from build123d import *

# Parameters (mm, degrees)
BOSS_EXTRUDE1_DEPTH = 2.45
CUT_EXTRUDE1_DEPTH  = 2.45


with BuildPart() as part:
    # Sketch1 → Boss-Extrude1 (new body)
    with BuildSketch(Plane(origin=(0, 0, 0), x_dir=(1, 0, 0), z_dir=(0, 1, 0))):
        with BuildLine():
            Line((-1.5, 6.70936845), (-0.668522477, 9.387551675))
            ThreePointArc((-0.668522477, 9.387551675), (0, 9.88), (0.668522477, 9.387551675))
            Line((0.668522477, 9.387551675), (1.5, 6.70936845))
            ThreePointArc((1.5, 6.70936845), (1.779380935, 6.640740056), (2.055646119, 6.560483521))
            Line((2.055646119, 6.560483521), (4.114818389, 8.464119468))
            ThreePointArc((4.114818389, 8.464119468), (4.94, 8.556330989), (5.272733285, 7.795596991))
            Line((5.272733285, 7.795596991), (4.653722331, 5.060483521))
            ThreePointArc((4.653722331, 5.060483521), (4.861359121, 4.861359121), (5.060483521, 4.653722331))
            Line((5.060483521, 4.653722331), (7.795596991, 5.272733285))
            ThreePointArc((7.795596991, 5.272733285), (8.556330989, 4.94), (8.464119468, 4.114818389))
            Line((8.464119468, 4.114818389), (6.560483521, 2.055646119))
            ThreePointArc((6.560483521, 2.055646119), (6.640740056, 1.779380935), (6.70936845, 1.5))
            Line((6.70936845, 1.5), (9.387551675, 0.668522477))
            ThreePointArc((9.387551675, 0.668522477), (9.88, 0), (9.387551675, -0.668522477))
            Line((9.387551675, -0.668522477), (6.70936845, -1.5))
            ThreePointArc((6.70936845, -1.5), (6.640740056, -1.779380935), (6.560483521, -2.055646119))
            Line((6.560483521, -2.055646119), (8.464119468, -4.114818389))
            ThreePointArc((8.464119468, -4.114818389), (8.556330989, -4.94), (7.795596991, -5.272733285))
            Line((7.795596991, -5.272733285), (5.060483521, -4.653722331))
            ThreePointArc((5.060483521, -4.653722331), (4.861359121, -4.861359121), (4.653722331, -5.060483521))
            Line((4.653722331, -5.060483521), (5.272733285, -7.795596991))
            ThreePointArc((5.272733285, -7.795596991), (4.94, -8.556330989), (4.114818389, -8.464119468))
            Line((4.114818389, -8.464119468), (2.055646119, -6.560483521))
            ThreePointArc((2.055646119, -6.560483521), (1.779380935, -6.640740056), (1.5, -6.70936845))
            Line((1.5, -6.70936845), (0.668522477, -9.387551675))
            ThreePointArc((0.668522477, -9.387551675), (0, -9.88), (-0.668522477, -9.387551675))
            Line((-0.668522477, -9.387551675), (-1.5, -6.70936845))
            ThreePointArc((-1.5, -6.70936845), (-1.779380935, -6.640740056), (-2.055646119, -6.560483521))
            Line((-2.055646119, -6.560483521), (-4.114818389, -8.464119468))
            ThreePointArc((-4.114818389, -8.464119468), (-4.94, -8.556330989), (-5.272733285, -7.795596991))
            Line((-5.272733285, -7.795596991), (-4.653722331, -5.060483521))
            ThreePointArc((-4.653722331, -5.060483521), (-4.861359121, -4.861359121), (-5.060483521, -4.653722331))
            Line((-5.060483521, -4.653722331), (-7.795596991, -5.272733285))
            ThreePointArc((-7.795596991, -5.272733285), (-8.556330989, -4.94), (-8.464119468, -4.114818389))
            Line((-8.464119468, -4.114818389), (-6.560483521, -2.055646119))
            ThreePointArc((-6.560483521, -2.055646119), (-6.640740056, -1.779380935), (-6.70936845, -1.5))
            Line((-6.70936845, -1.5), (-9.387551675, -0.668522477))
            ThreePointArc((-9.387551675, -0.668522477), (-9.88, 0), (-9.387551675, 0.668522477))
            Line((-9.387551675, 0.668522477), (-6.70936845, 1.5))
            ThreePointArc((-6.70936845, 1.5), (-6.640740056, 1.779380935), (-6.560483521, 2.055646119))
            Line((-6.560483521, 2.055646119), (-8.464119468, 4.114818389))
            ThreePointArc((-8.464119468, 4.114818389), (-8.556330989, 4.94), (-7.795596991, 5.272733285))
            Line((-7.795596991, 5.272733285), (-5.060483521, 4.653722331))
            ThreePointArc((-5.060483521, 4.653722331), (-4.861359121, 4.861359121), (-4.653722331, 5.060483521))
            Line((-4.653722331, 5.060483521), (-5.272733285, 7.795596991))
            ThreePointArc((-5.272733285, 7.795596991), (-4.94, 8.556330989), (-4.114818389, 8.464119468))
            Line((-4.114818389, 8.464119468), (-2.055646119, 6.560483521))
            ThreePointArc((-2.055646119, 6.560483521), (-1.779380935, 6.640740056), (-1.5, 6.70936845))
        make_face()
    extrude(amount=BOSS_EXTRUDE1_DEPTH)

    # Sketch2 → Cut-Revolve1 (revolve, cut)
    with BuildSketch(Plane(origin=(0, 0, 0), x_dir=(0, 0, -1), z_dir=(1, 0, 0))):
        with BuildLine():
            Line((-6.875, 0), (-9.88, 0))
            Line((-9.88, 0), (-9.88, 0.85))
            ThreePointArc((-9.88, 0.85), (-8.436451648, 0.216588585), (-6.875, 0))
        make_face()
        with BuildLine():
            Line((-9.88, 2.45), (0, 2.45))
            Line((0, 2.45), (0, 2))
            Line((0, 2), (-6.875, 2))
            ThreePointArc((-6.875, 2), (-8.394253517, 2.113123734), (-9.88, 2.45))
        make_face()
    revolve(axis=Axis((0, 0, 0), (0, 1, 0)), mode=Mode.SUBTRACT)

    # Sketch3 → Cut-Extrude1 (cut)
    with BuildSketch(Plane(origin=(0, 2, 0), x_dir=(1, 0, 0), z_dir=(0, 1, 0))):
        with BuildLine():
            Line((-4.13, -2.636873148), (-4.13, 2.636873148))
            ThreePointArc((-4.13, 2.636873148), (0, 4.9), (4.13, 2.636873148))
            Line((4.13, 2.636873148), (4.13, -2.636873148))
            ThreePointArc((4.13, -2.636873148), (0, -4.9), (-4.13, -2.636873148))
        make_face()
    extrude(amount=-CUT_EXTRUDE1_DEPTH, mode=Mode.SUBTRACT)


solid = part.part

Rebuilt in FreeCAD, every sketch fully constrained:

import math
import FreeCAD as App
import Part
import Sketcher
Q = App.Units.Quantity

doc = App.newDocument("Part")
body = doc.addObject("PartDesign::Body", "Body")

# Sketch on XZ plane
sketch1 = body.newObject("Sketcher::SketchObject", "Sketch")
sketch1.AttachmentSupport = (doc.getObject("XZ_Plane"), [""])
sketch1.MapMode = "FlatFace"
sketch1.addGeometry([
    Part.LineSegment(App.Vector(-0.7, -9.4, 0), App.Vector(-1.5, -6.7, 0)),  # 0
    Part.ArcOfCircle(Part.Circle(App.Vector(0, 0, 0), App.Vector(0, 0, 1), 6.9), math.radians(-107.4), math.radians(-102.6)),  # 1
    Part.LineSegment(App.Vector(-2.1, -6.6, 0), App.Vector(-4.1, -8.5, 0)),  # 2
    Part.ArcOfCircle(Part.Circle(App.Vector(-4.6, -8, 0), App.Vector(0, 0, 1), 0.7), math.radians(167), math.radians(313)),  # 3
    Part.LineSegment(App.Vector(-5.3, -7.8, 0), App.Vector(-4.7, -5.1, 0)),  # 4
    Part.ArcOfCircle(Part.Circle(App.Vector(0, 0, 0), App.Vector(0, 0, 1), 6.9), math.radians(-137.4), math.radians(-132.6)),  # 5
    Part.LineSegment(App.Vector(-5.1, -4.7, 0), App.Vector(-7.8, -5.3, 0)),  # 6
    Part.ArcOfCircle(Part.Circle(App.Vector(-8, -4.6, 0), App.Vector(0, 0, 1), 0.7), math.radians(137), math.radians(283)),  # 7
    Part.LineSegment(App.Vector(-8.5, -4.1, 0), App.Vector(-6.6, -2.1, 0)),  # 8
    Part.ArcOfCircle(Part.Circle(App.Vector(0, 0, 0), App.Vector(0, 0, 1), 6.9), math.radians(-167.4), math.radians(-162.6)),  # 9
    Part.LineSegment(App.Vector(-6.7, -1.5, 0), App.Vector(-9.4, -0.7, 0)),  # 10
    Part.ArcOfCircle(Part.Circle(App.Vector(-9.2, 0, 0), App.Vector(0, 0, 1), 0.7), math.radians(107), math.radians(253)),  # 11
    Part.LineSegment(App.Vector(-9.4, 0.7, 0), App.Vector(-6.7, 1.5, 0)),  # 12
    Part.ArcOfCircle(Part.Circle(App.Vector(0, 0, 0), App.Vector(0, 0, 1), 6.9), math.radians(162.6), math.radians(167.4)),  # 13
    Part.LineSegment(App.Vector(-6.6, 2.1, 0), App.Vector(-8.5, 4.1, 0)),  # 14
    Part.ArcOfCircle(Part.Circle(App.Vector(-8, 4.6, 0), App.Vector(0, 0, 1), 0.7), math.radians(77), math.radians(223)),  # 15
    Part.LineSegment(App.Vector(-7.8, 5.3, 0), App.Vector(-5.1, 4.7, 0)),  # 16
    Part.ArcOfCircle(Part.Circle(App.Vector(0, 0, 0), App.Vector(0, 0, 1), 6.9), math.radians(132.6), math.radians(137.4)),  # 17
    Part.LineSegment(App.Vector(-4.7, 5.1, 0), App.Vector(-5.3, 7.8, 0)),  # 18
    Part.ArcOfCircle(Part.Circle(App.Vector(-4.6, 8, 0), App.Vector(0, 0, 1), 0.7), math.radians(47), math.radians(193)),  # 19
    Part.LineSegment(App.Vector(-4.1, 8.5, 0), App.Vector(-2.1, 6.6, 0)),  # 20
    Part.ArcOfCircle(Part.Circle(App.Vector(0, 0, 0), App.Vector(0, 0, 1), 6.9), math.radians(102.6), math.radians(107.4)),  # 21
    Part.LineSegment(App.Vector(-1.5, 6.7, 0), App.Vector(-0.7, 9.4, 0)),  # 22
    Part.ArcOfCircle(Part.Circle(App.Vector(0, 9.2, 0), App.Vector(0, 0, 1), 0.7), math.radians(17), math.radians(163)),  # 23
    Part.LineSegment(App.Vector(0.7, 9.4, 0), App.Vector(1.5, 6.7, 0)),  # 24
    Part.ArcOfCircle(Part.Circle(App.Vector(0, 0, 0), App.Vector(0, 0, 1), 6.9), math.radians(72.6), math.radians(77.4)),  # 25
    Part.LineSegment(App.Vector(2.1, 6.6, 0), App.Vector(4.1, 8.5, 0)),  # 26
    Part.ArcOfCircle(Part.Circle(App.Vector(4.6, 8, 0), App.Vector(0, 0, 1), 0.7), math.radians(-13), math.radians(133)),  # 27
    Part.LineSegment(App.Vector(5.3, 7.8, 0), App.Vector(4.7, 5.1, 0)),  # 28
    Part.ArcOfCircle(Part.Circle(App.Vector(0, 0, 0), App.Vector(0, 0, 1), 6.9), math.radians(42.6), math.radians(47.4)),  # 29
    Part.LineSegment(App.Vector(5.1, 4.7, 0), App.Vector(7.8, 5.3, 0)),  # 30
    Part.ArcOfCircle(Part.Circle(App.Vector(8, 4.6, 0), App.Vector(0, 0, 1), 0.7), math.radians(-43), math.radians(103)),  # 31
    Part.LineSegment(App.Vector(8.5, 4.1, 0), App.Vector(6.6, 2.1, 0)),  # 32
    Part.ArcOfCircle(Part.Circle(App.Vector(0, 0, 0), App.Vector(0, 0, 1), 6.9), math.radians(12.6), math.radians(17.4)),  # 33
    Part.LineSegment(App.Vector(6.7, 1.5, 0), App.Vector(9.4, 0.7, 0)),  # 34
    Part.ArcOfCircle(Part.Circle(App.Vector(9.2, 0, 0), App.Vector(0, 0, 1), 0.7), math.radians(-73), math.radians(73)),  # 35
    Part.LineSegment(App.Vector(9.4, -0.7, 0), App.Vector(6.7, -1.5, 0)),  # 36
    Part.ArcOfCircle(Part.Circle(App.Vector(0, 0, 0), App.Vector(0, 0, 1), 6.9), math.radians(-17.4), math.radians(-12.6)),  # 37
    Part.LineSegment(App.Vector(6.6, -2.1, 0), App.Vector(8.5, -4.1, 0)),  # 38
    Part.ArcOfCircle(Part.Circle(App.Vector(8, -4.6, 0), App.Vector(0, 0, 1), 0.7), math.radians(-103), math.radians(43)),  # 39
    Part.LineSegment(App.Vector(7.8, -5.3, 0), App.Vector(5.1, -4.7, 0)),  # 40
    Part.ArcOfCircle(Part.Circle(App.Vector(0, 0, 0), App.Vector(0, 0, 1), 6.9), math.radians(-47.4), math.radians(-42.6)),  # 41
    Part.LineSegment(App.Vector(4.7, -5.1, 0), App.Vector(5.3, -7.8, 0)),  # 42
    Part.ArcOfCircle(Part.Circle(App.Vector(4.6, -8, 0), App.Vector(0, 0, 1), 0.7), math.radians(-133), math.radians(13)),  # 43
    Part.LineSegment(App.Vector(4.1, -8.5, 0), App.Vector(2.1, -6.6, 0)),  # 44
    Part.ArcOfCircle(Part.Circle(App.Vector(0, 0, 0), App.Vector(0, 0, 1), 6.9), math.radians(-77.4), math.radians(-72.6)),  # 45
    Part.LineSegment(App.Vector(1.5, -6.7, 0), App.Vector(0.7, -9.4, 0)),  # 46
    Part.ArcOfCircle(Part.Circle(App.Vector(0, -9.2, 0), App.Vector(0, 0, 1), 0.7), math.radians(-163), math.radians(-17)),  # 47
], False)
sketch1.addConstraint([
    Sketcher.Constraint("Coincident", 0, 2, 1, 2),
    Sketcher.Constraint("Coincident", 1, 1, 2, 1),
    Sketcher.Constraint("Tangent", 2, 2, 3, 2),
    Sketcher.Constraint("Tangent", 3, 1, 4, 1),
    Sketcher.Constraint("Coincident", 4, 2, 5, 2),
    Sketcher.Constraint("Coincident", 5, 1, 6, 1),
    Sketcher.Constraint("Tangent", 6, 2, 7, 2),
    Sketcher.Constraint("Tangent", 7, 1, 8, 1),
    Sketcher.Constraint("Coincident", 8, 2, 9, 2),
    Sketcher.Constraint("Coincident", 9, 1, 10, 1),
    Sketcher.Constraint("Tangent", 10, 2, 11, 2),
    Sketcher.Constraint("Tangent", 11, 1, 12, 1),
    Sketcher.Constraint("Coincident", 12, 2, 13, 2),
    Sketcher.Constraint("Coincident", 13, 1, 14, 1),
    Sketcher.Constraint("Tangent", 14, 2, 15, 2),
    Sketcher.Constraint("Tangent", 15, 1, 16, 1),
    Sketcher.Constraint("Coincident", 16, 2, 17, 2),
    Sketcher.Constraint("Coincident", 17, 1, 18, 1),
    Sketcher.Constraint("Tangent", 18, 2, 19, 2),
    Sketcher.Constraint("Tangent", 19, 1, 20, 1),
    Sketcher.Constraint("Coincident", 20, 2, 21, 2),
    Sketcher.Constraint("Coincident", 21, 1, 22, 1),
    Sketcher.Constraint("Tangent", 22, 2, 23, 2),
    Sketcher.Constraint("Tangent", 23, 1, 24, 1),
    Sketcher.Constraint("Coincident", 24, 2, 25, 2),
    Sketcher.Constraint("Coincident", 25, 1, 26, 1),
    Sketcher.Constraint("Tangent", 26, 2, 27, 2),
    Sketcher.Constraint("Tangent", 27, 1, 28, 1),
    Sketcher.Constraint("Coincident", 28, 2, 29, 2),
    Sketcher.Constraint("Coincident", 29, 1, 30, 1),
    Sketcher.Constraint("Tangent", 30, 2, 31, 2),
    Sketcher.Constraint("Tangent", 31, 1, 32, 1),
    Sketcher.Constraint("Coincident", 32, 2, 33, 2),
    Sketcher.Constraint("Coincident", 33, 1, 34, 1),
    Sketcher.Constraint("Tangent", 34, 2, 35, 2),
    Sketcher.Constraint("Tangent", 35, 1, 36, 1),
    Sketcher.Constraint("Coincident", 36, 2, 37, 2),
    Sketcher.Constraint("Coincident", 37, 1, 38, 1),
    Sketcher.Constraint("Tangent", 38, 2, 39, 2),
    Sketcher.Constraint("Tangent", 39, 1, 40, 1),
    Sketcher.Constraint("Coincident", 40, 2, 41, 2),
    Sketcher.Constraint("Coincident", 41, 1, 42, 1),
    Sketcher.Constraint("Tangent", 42, 2, 43, 2),
    Sketcher.Constraint("Tangent", 43, 1, 44, 1),
    Sketcher.Constraint("Coincident", 44, 2, 45, 2),
    Sketcher.Constraint("Coincident", 45, 1, 46, 1),
    Sketcher.Constraint("Tangent", 46, 2, 47, 2),
    Sketcher.Constraint("Tangent", 47, 1, 0, 1),
    Sketcher.Constraint("Coincident", 1, 3, -1, 1),
    Sketcher.Constraint("Coincident", 5, 3, -1, 1),
    Sketcher.Constraint("Coincident", 9, 3, -1, 1),
    Sketcher.Constraint("Coincident", 13, 3, -1, 1),
    Sketcher.Constraint("Coincident", 17, 3, -1, 1),
    Sketcher.Constraint("Coincident", 21, 3, -1, 1),
    Sketcher.Constraint("Coincident", 25, 3, -1, 1),
    Sketcher.Constraint("Coincident", 29, 3, -1, 1),
    Sketcher.Constraint("Coincident", 33, 3, -1, 1),
    Sketcher.Constraint("Coincident", 37, 3, -1, 1),
    Sketcher.Constraint("Coincident", 41, 3, -1, 1),
    Sketcher.Constraint("Coincident", 45, 3, -1, 1),
    Sketcher.Constraint("Equal", 1, 5),
    Sketcher.Constraint("Equal", 3, 7),
    Sketcher.Constraint("Equal", 5, 9),
    Sketcher.Constraint("Equal", 7, 11),
    Sketcher.Constraint("Equal", 9, 13),
    Sketcher.Constraint("Equal", 11, 15),
    Sketcher.Constraint("Equal", 13, 17),
    Sketcher.Constraint("Equal", 15, 19),
    Sketcher.Constraint("Equal", 17, 21),
    Sketcher.Constraint("Equal", 19, 23),
    Sketcher.Constraint("Equal", 21, 25),
    Sketcher.Constraint("Equal", 23, 27),
    Sketcher.Constraint("Equal", 25, 29),
    Sketcher.Constraint("Equal", 27, 31),
    Sketcher.Constraint("Equal", 29, 33),
    Sketcher.Constraint("Equal", 31, 35),
    Sketcher.Constraint("Equal", 33, 37),
    Sketcher.Constraint("Equal", 35, 39),
    Sketcher.Constraint("Equal", 37, 41),
    Sketcher.Constraint("Equal", 39, 43),
    Sketcher.Constraint("Equal", 41, 45),
    Sketcher.Constraint("Equal", 43, 47),
    Sketcher.Constraint("Symmetric", 3, 3, 27, 3, -1, 1),
    Sketcher.Constraint("Symmetric", 7, 3, 31, 3, -1, 1),
    Sketcher.Constraint("Symmetric", 11, 3, 35, 3, -1, 1),
    Sketcher.Constraint("Symmetric", 15, 3, 39, 3, -1, 1),
    Sketcher.Constraint("Symmetric", 19, 3, 43, 3, -1, 1),
    Sketcher.Constraint("Symmetric", 23, 3, 47, 3, -1, 1),
    Sketcher.Constraint("Symmetric", 19, 3, 27, 3, -2),
    Sketcher.Constraint("Symmetric", 15, 3, 31, 3, -2),
    Sketcher.Constraint("Symmetric", 22, 2, 23, 1, -2),
    Sketcher.Constraint("Symmetric", 11, 1, 34, 2, -2),
    Sketcher.Constraint("Perpendicular", 0, 12),
    Sketcher.Constraint("Perpendicular", 2, 14),
    Sketcher.Constraint("Perpendicular", 4, 16),
    Sketcher.Constraint("Perpendicular", 6, 18),
    Sketcher.Constraint("Perpendicular", 8, 20),
    Sketcher.Constraint("Perpendicular", 10, 22),
    Sketcher.Constraint("Perpendicular", 12, 24),
    Sketcher.Constraint("Perpendicular", 14, 26),
    Sketcher.Constraint("Perpendicular", 16, 28),
    Sketcher.Constraint("Perpendicular", 18, 30),
    Sketcher.Constraint("Perpendicular", 20, 32),
    Sketcher.Constraint("Perpendicular", 24, 36),
    Sketcher.Constraint("Perpendicular", 26, 38),
    Sketcher.Constraint("Perpendicular", 28, 40),
    Sketcher.Constraint("Perpendicular", 30, 42),
    Sketcher.Constraint("Perpendicular", 32, 44),
    Sketcher.Constraint("Perpendicular", 34, 46),
    Sketcher.Constraint("Horizontal", 20, 2, 25, 1),
    Sketcher.Constraint("Horizontal", 18, 2, 27, 1),
    Sketcher.Constraint("Equal", 0, 2),
    Sketcher.Constraint("Equal", 2, 4),
    Sketcher.Constraint("Equal", 4, 6),
    Sketcher.Constraint("Equal", 6, 8),
    Sketcher.Constraint("Equal", 8, 10),
    Sketcher.Constraint("Radius", 3, Q("0.7 mm")),
    Sketcher.Constraint("Radius", 1, Q("6.874999 mm")),
    Sketcher.Constraint("DistanceX", 0, 2, -1, 1, Q("1.5 mm")),
    Sketcher.Constraint("DistanceX", 3, 3, -1, 1, Q("4.59 mm")),
    Sketcher.Constraint("DistanceX", 11, 3, -1, 1, Q("9.18 mm")),
    Sketcher.Constraint("DistanceX", 2, 2, -1, 1, Q("4.114818 mm")),
])
pad1 = body.newObject("PartDesign::Pad", "Pad")
pad1.Profile = sketch1
pad1.Length = 2.45
pad1.Reversed = True

# Sketch on YZ plane
sketch2 = body.newObject("Sketcher::SketchObject", "Sketch001")
sketch2.AttachmentSupport = (doc.getObject("YZ_Plane"), [""])
sketch2.MapMode = "FlatFace"
sketch2.addGeometry([
    Part.LineSegment(App.Vector(0, 9.88, 0), App.Vector(0, 6.88, 0)),  # 0
    Part.ArcOfCircle(Part.Circle(App.Vector(5.74, 6.87, 0), App.Vector(0, 0, 1), 5.74), math.radians(148), math.radians(180)),  # 1
    Part.LineSegment(App.Vector(0.85, 9.88, 0), App.Vector(0, 9.88, 0)),  # 2
    Part.LineSegment(App.Vector(2.45, 0, 0), App.Vector(2.45, 9.88, 0)),  # 3
    Part.ArcOfCircle(Part.Circle(App.Vector(12.26, 6.88, 0), App.Vector(0, 0, 1), 10.26), math.radians(162.97), math.radians(180)),  # 4
    Part.LineSegment(App.Vector(2, 6.88, 0), App.Vector(2, 0, 0)),  # 5
    Part.LineSegment(App.Vector(2, 0, 0), App.Vector(2.45, 0, 0)),  # 6
], False)
sketch2.addConstraint([
    Sketcher.Constraint("Tangent", 0, 2, 1, 2),
    Sketcher.Constraint("Coincident", 1, 1, 2, 1),
    Sketcher.Constraint("Coincident", 2, 2, 0, 1),
    Sketcher.Constraint("Coincident", 3, 2, 4, 1),
    Sketcher.Constraint("Tangent", 4, 2, 5, 1),
    Sketcher.Constraint("Coincident", 5, 2, 6, 1),
    Sketcher.Constraint("Coincident", 6, 2, 3, 1),
    Sketcher.Constraint("Vertical", 0),
    Sketcher.Constraint("Horizontal", 2),
    Sketcher.Constraint("Vertical", 3),
    Sketcher.Constraint("Vertical", 5),
    Sketcher.Constraint("Horizontal", 6),
    Sketcher.Constraint("PointOnObject", 0, 2, -2),
    Sketcher.Constraint("PointOnObject", 5, 2, -1),
    Sketcher.Constraint("Horizontal", 1, 3, 4, 3),
    Sketcher.Constraint("Horizontal", 2, 2, 3, 2),
    Sketcher.Constraint("DistanceX", -1, 1, 4, 2, Q("2 mm")),
    Sketcher.Constraint("DistanceX", 2, 2, 2, 1, Q("0.85 mm")),
    Sketcher.Constraint("DistanceX", 6, 1, 6, 2, Q("0.45 mm")),
    Sketcher.Constraint("DistanceY", 3, 1, 3, 2, Q("9.88 mm")),
    Sketcher.Constraint("DistanceY", 0, 2, 0, 1, Q("3.005 mm")),
])
groove = body.newObject("PartDesign::Groove", "Groove")
groove.Profile = sketch2
groove.ReferenceAxis = (sketch2, ["H_Axis"])
groove.Angle = 360

# Sketch on XZ plane
sketch3 = body.newObject("Sketcher::SketchObject", "Sketch002")
sketch3.AttachmentSupport = (doc.getObject("XZ_Plane"), [""])
sketch3.MapMode = "FlatFace"
sketch3.AttachmentOffset = App.Placement(App.Vector(0, 0, -2), App.Rotation())
sketch3.addGeometry([
    Part.LineSegment(App.Vector(-4.1, -2.6, 0), App.Vector(-4.1, 2.6, 0)),
    Part.ArcOfCircle(Part.Circle(App.Vector(0, 0, 0), App.Vector(0, 0, 1), 4.9), math.radians(33), math.radians(147)),
    Part.LineSegment(App.Vector(4.1, 2.6, 0), App.Vector(4.1, -2.6, 0)),
    Part.ArcOfCircle(Part.Circle(App.Vector(0, 0, 0), App.Vector(0, 0, 1), 4.9), math.radians(-147), math.radians(-33)),
], False)
sketch3.addConstraint([
    Sketcher.Constraint("Coincident", 0, 2, 1, 2),
    Sketcher.Constraint("Coincident", 1, 1, 2, 1),
    Sketcher.Constraint("Coincident", 2, 2, 3, 2),
    Sketcher.Constraint("Coincident", 3, 1, 0, 1),
    Sketcher.Constraint("Vertical", 0),
    Sketcher.Constraint("Vertical", 2),
    Sketcher.Constraint("Coincident", 1, 3, -1, 1),
    Sketcher.Constraint("Coincident", 3, 3, -1, 1),
    Sketcher.Constraint("Equal", 1, 3),
    Sketcher.Constraint("Horizontal", 0, 2, 1, 1),
    Sketcher.Constraint("Radius", 1, Q("4.9 mm")),
    Sketcher.Constraint("DistanceX", 0, 2, -1, 1, Q("4.13 mm")),
])
pocket1 = body.newObject("PartDesign::Pocket", "Pocket")
pocket1.Profile = sketch3
pocket1.Length = 2.45
pocket1.Reversed = True

doc.recompute()
